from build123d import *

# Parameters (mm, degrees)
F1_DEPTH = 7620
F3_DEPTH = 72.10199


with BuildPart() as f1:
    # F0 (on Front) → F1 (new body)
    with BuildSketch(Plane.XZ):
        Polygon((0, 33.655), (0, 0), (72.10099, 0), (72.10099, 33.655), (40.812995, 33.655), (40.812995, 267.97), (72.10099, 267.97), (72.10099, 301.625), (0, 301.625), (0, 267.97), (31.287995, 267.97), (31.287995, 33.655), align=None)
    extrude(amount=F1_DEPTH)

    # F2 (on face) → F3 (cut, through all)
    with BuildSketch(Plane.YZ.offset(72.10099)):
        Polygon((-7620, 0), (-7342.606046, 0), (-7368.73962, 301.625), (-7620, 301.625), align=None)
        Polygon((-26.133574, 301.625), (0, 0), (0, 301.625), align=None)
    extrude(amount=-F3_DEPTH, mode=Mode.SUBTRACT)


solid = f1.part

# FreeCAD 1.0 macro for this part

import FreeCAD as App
import Part
import Sketcher
Q = App.Units.Quantity


def add_polygon(sketch, points):
    """Adds a closed chain of lines whose ends are joined by coincident constraints."""
    first, n = sketch.GeometryCount, len(points)
    for a, b in zip(points, points[1:] + points[:1]):
        sketch.addGeometry(Part.LineSegment(App.Vector(*a, 0), App.Vector(*b, 0)), False)
    for i in range(n):
        sketch.addConstraint(Sketcher.Constraint("Coincident", first + i, 2, first + (i + 1) % n, 1))

doc = App.newDocument("Part")
body = doc.addObject("PartDesign::Body", "Body")

# Sketch on XZ plane
sketch1 = body.newObject("Sketcher::SketchObject", "Sketch")
sketch1.AttachmentSupport = (doc.getObject("XZ_Plane"), [""])
sketch1.MapMode = "FlatFace"
add_polygon(sketch1, [(0, 34), (0, 0), (72, 0), (72, 34), (41, 34), (41, 268), (72, 268), (72, 302), (0, 302), (0, 268), (31, 268), (31, 34)])  # lines 0-11
sketch1.addConstraint(Sketcher.Constraint("Vertical", 0))
sketch1.addConstraint(Sketcher.Constraint("Horizontal", 1))
sketch1.addConstraint(Sketcher.Constraint("Vertical", 2))
sketch1.addConstraint(Sketcher.Constraint("Horizontal", 3))
sketch1.addConstraint(Sketcher.Constraint("Vertical", 4))
sketch1.addConstraint(Sketcher.Constraint("Horizontal", 5))
sketch1.addConstraint(Sketcher.Constraint("Vertical", 6))
sketch1.addConstraint(Sketcher.Constraint("Horizontal", 7))
sketch1.addConstraint(Sketcher.Constraint("Vertical", 8))
sketch1.addConstraint(Sketcher.Constraint("Horizontal", 9))
sketch1.addConstraint(Sketcher.Constraint("Vertical", 10))
sketch1.addConstraint(Sketcher.Constraint("Horizontal", 11))
sketch1.addConstraint(Sketcher.Constraint("Coincident", 0, 2, -1, 1))
sketch1.addConstraint(Sketcher.Constraint("PointOnObject", 7, 2, -2))
sketch1.addConstraint(Sketcher.Constraint("Horizontal", 5, 2, 8, 2))
sketch1.addConstraint(Sketcher.Constraint("Horizontal", 3, 2, 10, 2))
sketch1.addConstraint(Sketcher.Constraint("Vertical", 2, 2, 5, 2))
sketch1.addConstraint(Sketcher.Constraint("Equal", 5, 9))
sketch1.addConstraint(Sketcher.Constraint("Equal", 2, 6))
sketch1.addConstraint(Sketcher.Constraint("DistanceY", 0, 2, 0, 1, Q("1.325 in")))
sketch1.addConstraint(Sketcher.Constraint("DistanceY", 4, 1, 4, 2, Q("9.225 in")))
sketch1.addConstraint(Sketcher.Constraint("DistanceX", 9, 2, 4, 2, Q("0.375 in")))
sketch1.addConstraint(Sketcher.Constraint("DistanceX", 1, 1, 1, 2, 72.10099))
pad1 = body.newObject("PartDesign::Pad", "Pad")
pad1.Profile = sketch1
pad1.Length = Q("300 in")

# Sketch on YZ plane
sketch2 = body.newObject("Sketcher::SketchObject", "Sketch001")
sketch2.AttachmentSupport = (doc.getObject("YZ_Plane"), [""])
sketch2.MapMode = "FlatFace"
sketch2.AttachmentOffset = App.Placement(App.Vector(0, 0, 72.10099), App.Rotation())
add_polygon(sketch2, [(-7620, 0), (-7343, 0), (-7369, 302), (-7620, 302)])  # lines 0-3
add_polygon(sketch2, [(-26, 302), (0, 0), (0, 302)])  # lines 4-6
sketch2.addConstraint(Sketcher.Constraint("Horizontal", 0))
sketch2.addConstraint(Sketcher.Constraint("Horizontal", 2))
sketch2.addConstraint(Sketcher.Constraint("Vertical", 3))
sketch2.addConstraint(Sketcher.Constraint("Vertical", 5))
sketch2.addConstraint(Sketcher.Constraint("Horizontal", 6))
sketch2.addConstraint(Sketcher.Constraint("Coincident", 4, 2, -1, 1))
sketch2.addConstraint(Sketcher.Constraint("PointOnObject", 0, 2, -1))
sketch2.addConstraint(Sketcher.Constraint("Parallel", 1, 4))
sketch2.addConstraint(Sketcher.Constraint("Horizontal", 2, 2, 5, 2))
sketch2.addConstraint(Sketcher.Constraint("DistanceX", 2, 2, -1, 1, Q("300 in")))
sketch2.addConstraint(Sketcher.Constraint("DistanceY", 3, 2, 3, 1, Q("11.875 in")))
sketch2.addConstraint(Sketcher.Constraint("DistanceX", 2, 2, 2, 1, 251.26038))
sketch2.addConstraint(Sketcher.Constraint("DistanceX", 0, 1, 0, 2, 277.393954))
pocket1 = body.newObject("PartDesign::Pocket", "Pocket")
pocket1.Profile = sketch2
pocket1.Type = "ThroughAll"

doc.recompute()
